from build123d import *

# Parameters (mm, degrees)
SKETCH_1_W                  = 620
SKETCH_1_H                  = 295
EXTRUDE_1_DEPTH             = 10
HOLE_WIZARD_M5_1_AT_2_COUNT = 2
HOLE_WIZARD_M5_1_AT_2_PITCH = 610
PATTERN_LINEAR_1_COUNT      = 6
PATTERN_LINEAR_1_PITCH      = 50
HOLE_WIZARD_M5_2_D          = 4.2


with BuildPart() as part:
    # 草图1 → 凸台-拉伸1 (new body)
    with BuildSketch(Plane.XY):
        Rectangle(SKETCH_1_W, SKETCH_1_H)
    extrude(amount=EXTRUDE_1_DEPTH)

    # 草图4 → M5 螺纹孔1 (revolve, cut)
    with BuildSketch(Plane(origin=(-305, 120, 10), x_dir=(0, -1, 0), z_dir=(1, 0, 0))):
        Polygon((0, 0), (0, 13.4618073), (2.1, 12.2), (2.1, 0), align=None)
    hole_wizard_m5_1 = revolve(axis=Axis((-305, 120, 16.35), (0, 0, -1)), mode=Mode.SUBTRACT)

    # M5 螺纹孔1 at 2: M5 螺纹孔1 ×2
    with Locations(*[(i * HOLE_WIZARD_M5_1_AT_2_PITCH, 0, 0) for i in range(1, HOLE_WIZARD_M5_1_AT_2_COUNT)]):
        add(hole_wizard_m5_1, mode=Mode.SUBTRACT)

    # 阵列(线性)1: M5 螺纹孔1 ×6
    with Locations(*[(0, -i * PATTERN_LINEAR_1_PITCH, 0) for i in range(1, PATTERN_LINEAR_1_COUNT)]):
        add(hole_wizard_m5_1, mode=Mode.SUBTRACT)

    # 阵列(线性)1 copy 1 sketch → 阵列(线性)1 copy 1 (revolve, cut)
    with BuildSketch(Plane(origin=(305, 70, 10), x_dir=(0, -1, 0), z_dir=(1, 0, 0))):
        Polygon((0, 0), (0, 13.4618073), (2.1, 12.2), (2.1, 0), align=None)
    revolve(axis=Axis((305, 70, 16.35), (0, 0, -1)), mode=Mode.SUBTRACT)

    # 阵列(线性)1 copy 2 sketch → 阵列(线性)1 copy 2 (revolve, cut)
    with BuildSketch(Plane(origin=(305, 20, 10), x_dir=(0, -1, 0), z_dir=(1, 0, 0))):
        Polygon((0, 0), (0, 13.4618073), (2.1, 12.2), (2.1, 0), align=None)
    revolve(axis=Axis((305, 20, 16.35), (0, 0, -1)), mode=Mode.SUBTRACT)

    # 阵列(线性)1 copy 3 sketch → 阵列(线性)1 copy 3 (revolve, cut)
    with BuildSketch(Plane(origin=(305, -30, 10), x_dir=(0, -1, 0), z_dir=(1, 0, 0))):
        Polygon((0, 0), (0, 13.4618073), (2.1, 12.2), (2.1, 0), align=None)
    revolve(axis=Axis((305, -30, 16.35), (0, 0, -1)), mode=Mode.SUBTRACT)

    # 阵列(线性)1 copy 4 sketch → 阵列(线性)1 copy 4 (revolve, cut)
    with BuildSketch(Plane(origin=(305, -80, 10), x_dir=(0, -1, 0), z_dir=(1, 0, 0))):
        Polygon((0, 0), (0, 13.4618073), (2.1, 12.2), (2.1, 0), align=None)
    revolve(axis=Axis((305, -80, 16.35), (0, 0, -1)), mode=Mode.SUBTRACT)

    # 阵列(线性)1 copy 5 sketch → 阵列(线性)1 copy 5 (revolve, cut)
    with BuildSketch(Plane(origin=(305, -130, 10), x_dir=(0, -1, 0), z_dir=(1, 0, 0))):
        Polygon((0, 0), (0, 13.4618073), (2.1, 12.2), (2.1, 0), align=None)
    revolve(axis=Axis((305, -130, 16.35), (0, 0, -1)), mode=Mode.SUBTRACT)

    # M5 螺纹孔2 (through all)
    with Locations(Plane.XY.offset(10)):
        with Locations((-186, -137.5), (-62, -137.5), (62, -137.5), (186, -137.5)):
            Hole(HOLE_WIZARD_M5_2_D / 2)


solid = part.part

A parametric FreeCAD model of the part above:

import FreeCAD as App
import Part
import Sketcher
from FreeCAD import Vector
Q = App.Units.Quantity


def add_polygon(sketch, points):
    """Adds a closed chain of lines whose ends are joined by coincident constraints."""
    first, n = sketch.GeometryCount, len(points)
    for a, b in zip(points, points[1:] + points[:1]):
        sketch.addGeometry(Part.LineSegment(App.Vector(*a, 0), App.Vector(*b, 0)), False)
    for i in range(n):
        sketch.addConstraint(Sketcher.Constraint("Coincident", first + i, 2, first + (i + 1) % n, 1))

doc = App.newDocument("Part")
body = doc.addObject("PartDesign::Body", "Body")

sketch1 = doc.addObject("Sketcher::SketchObject", "Sketch")
body.addObject(sketch1)
sketch1.AttachmentSupport = (doc.XY_Plane, [""])
sketch1.MapMode = "FlatFace"
add_polygon(sketch1, [(-310, 148), (-310, -148), (310, -148), (310, 148)])
sketch1.addConstraint([
    Sketcher.Constraint("Vertical", 0),
    Sketcher.Constraint("Horizontal", 1),
    Sketcher.Constraint("Vertical", 2),
    Sketcher.Constraint("Horizontal", 3),
    Sketcher.Constraint("Symmetric", 0, 2, 2, 2, -1, 1),
    Sketcher.Constraint("DistanceX", 1, 1, 1, 2, 620.0),
    Sketcher.Constraint("DistanceY", 0, 2, 0, 1, 295.0),
])
pad1 = doc.addObject("PartDesign::Pad", "Pad")
body.addObject(pad1)
pad1.Profile = sketch1
pad1.Length = 10

sketch2 = doc.addObject("Sketcher::SketchObject", "Sketch001")
body.addObject(sketch2)
sketch2.AttachmentSupport = (doc.YZ_Plane, [""])
sketch2.MapMode = "FlatFace"
sketch2.AttachmentOffset = App.Placement(Vector(0, 0, -305), App.Rotation())
add_polygon(sketch2, [(120, -3.5), (120, 10), (117.9, 10), (117.9, -2.2)])
sketch2.addGeometry(Part.LineSegment(Vector(120, 10, 0), Vector(120, -3.5, 0)), True)
sketch2.addConstraint([
    Sketcher.Constraint("Vertical", 0),
    Sketcher.Constraint("Horizontal", 1),
    Sketcher.Constraint("Vertical", 2),
    Sketcher.Constraint("Vertical", 4),
    Sketcher.Constraint("Coincident", 4, 1, 0, 2),
    Sketcher.Constraint("Equal", 0, 4),
    Sketcher.Constraint("Angle", 3, Q("-31 deg")),
    Sketcher.Constraint("DistanceX", 1, 2, 1, 1, 2.1),
    Sketcher.Constraint("DistanceY", 2, 2, 2, 1, 12.2),
    Sketcher.Constraint("DistanceX", -1, 1, 0, 2, 120.0),
    Sketcher.Constraint("DistanceY", -1, 1, 0, 2, 10.0),
])
groove = doc.addObject("PartDesign::Groove", "Groove")
body.addObject(groove)
groove.Profile = sketch2
groove.ReferenceAxis = (sketch2, ["Axis0"])
groove.Angle = 360
doc.recompute()

linearpattern = doc.addObject("PartDesign::LinearPattern", "LinearPattern")
body.addObject(linearpattern)
linearpattern.Originals = [groove]
linearpattern.Direction = (doc.X_Axis, [""])
linearpattern.Mode = "offset"
linearpattern.Offset = 610
linearpattern.Occurrences = 2
body.Tip = linearpattern
doc.recompute()

linearpattern2 = doc.addObject("PartDesign::LinearPattern", "LinearPattern001")
body.addObject(linearpattern2)
linearpattern2.Originals = [groove]
linearpattern2.Direction = (doc.Y_Axis, [""])
linearpattern2.Mode = "offset"
linearpattern2.Offset = 50
linearpattern2.Occurrences = 6
linearpattern2.Reversed = True
body.Tip = linearpattern2

sketch3 = doc.addObject("Sketcher::SketchObject", "Sketch002")
body.addObject(sketch3)
sketch3.AttachmentSupport = (doc.YZ_Plane, [""])
sketch3.MapMode = "FlatFace"
sketch3.AttachmentOffset = App.Placement(Vector(0, 0, 305), App.Rotation())
add_polygon(sketch3, [(70, -3.5), (70, 10), (67.9, 10), (67.9, -2.2)])
sketch3.addGeometry(Part.LineSegment(Vector(70, 10, 0), Vector(70, -3.5, 0)), True)
sketch3.addConstraint([
    Sketcher.Constraint("Vertical", 0),
    Sketcher.Constraint("Horizontal", 1),
    Sketcher.Constraint("Vertical", 2),
    Sketcher.Constraint("Vertical", 4),
    Sketcher.Constraint("Coincident", 4, 1, 0, 2),
    Sketcher.Constraint("Equal", 0, 4),
    Sketcher.Constraint("Angle", 3, Q("-31 deg")),
    Sketcher.Constraint("DistanceX", 1, 2, 1, 1, 2.1),
    Sketcher.Constraint("DistanceY", 2, 2, 2, 1, 12.2),
    Sketcher.Constraint("DistanceX", -1, 1, 0, 2, 70.0),
    Sketcher.Constraint("DistanceY", -1, 1, 0, 2, 10.0),
])
groove2 = doc.addObject("PartDesign::Groove", "Groove001")
body.addObject(groove2)
groove2.Profile = sketch3
groove2.ReferenceAxis = (sketch3, ["Axis0"])
groove2.Angle = 360

sketch4 = doc.addObject("Sketcher::SketchObject", "Sketch003")
body.addObject(sketch4)
sketch4.AttachmentSupport = (doc.YZ_Plane, [""])
sketch4.MapMode = "FlatFace"
sketch4.AttachmentOffset = App.Placement(Vector(0, 0, 305), App.Rotation())
add_polygon(sketch4, [(20, -3.5), (20, 10), (17.9, 10), (17.9, -2.2)])
sketch4.addGeometry(Part.LineSegment(Vector(20, 10, 0), Vector(20, -3.5, 0)), True)
sketch4.addConstraint([
    Sketcher.Constraint("Vertical", 0),
    Sketcher.Constraint("Horizontal", 1),
    Sketcher.Constraint("Vertical", 2),
    Sketcher.Constraint("Vertical", 4),
    Sketcher.Constraint("Coincident", 4, 1, 0, 2),
    Sketcher.Constraint("Equal", 0, 4),
    Sketcher.Constraint("Angle", 3, Q("-31 deg")),
    Sketcher.Constraint("DistanceX", 1, 2, 1, 1, 2.1),
    Sketcher.Constraint("DistanceY", 2, 2, 2, 1, 12.2),
    Sketcher.Constraint("DistanceX", -1, 1, 0, 2, 20.0),
    Sketcher.Constraint("DistanceY", -1, 1, 0, 2, 10.0),
])
groove3 = doc.addObject("PartDesign::Groove", "Groove002")
body.addObject(groove3)
groove3.Profile = sketch4
groove3.ReferenceAxis = (sketch4, ["Axis0"])
groove3.Angle = 360

sketch5 = doc.addObject("Sketcher::SketchObject", "Sketch004")
body.addObject(sketch5)
sketch5.AttachmentSupport = (doc.YZ_Plane, [""])
sketch5.MapMode = "FlatFace"
sketch5.AttachmentOffset = App.Placement(Vector(0, 0, 305), App.Rotation())
add_polygon(sketch5, [(-30, -3.5), (-30, 10), (-32.1, 10), (-32.1, -2.2)])
sketch5.addGeometry(Part.LineSegment(Vector(-30, 10, 0), Vector(-30, -3.5, 0)), True)
sketch5.addConstraint([
    Sketcher.Constraint("Vertical", 0),
    Sketcher.Constraint("Horizontal", 1),
    Sketcher.Constraint("Vertical", 2),
    Sketcher.Constraint("Vertical", 4),
    Sketcher.Constraint("Coincident", 4, 1, 0, 2),
    Sketcher.Constraint("Equal", 0, 4),
    Sketcher.Constraint("Angle", 3, Q("-31 deg")),
    Sketcher.Constraint("DistanceX", 1, 2, 1, 1, 2.1),
    Sketcher.Constraint("DistanceY", 2, 2, 2, 1, 12.2),
    Sketcher.Constraint("DistanceX", 0, 2, -1, 1, 30.0),
    Sketcher.Constraint("DistanceY", -1, 1, 0, 2, 10.0),
])
groove4 = doc.addObject("PartDesign::Groove", "Groove003")
body.addObject(groove4)
groove4.Profile = sketch5
groove4.ReferenceAxis = (sketch5, ["Axis0"])
groove4.Angle = 360

sketch6 = doc.addObject("Sketcher::SketchObject", "Sketch005")
body.addObject(sketch6)
sketch6.AttachmentSupport = (doc.YZ_Plane, [""])
sketch6.MapMode = "FlatFace"
sketch6.AttachmentOffset = App.Placement(Vector(0, 0, 305), App.Rotation())
add_polygon(sketch6, [(-80, -3.5), (-80, 10), (-82.1, 10), (-82.1, -2.2)])
sketch6.addGeometry(Part.LineSegment(Vector(-80, 10, 0), Vector(-80, -3.5, 0)), True)
sketch6.addConstraint([
    Sketcher.Constraint("Vertical", 0),
    Sketcher.Constraint("Horizontal", 1),
    Sketcher.Constraint("Vertical", 2),
    Sketcher.Constraint("Vertical", 4),
    Sketcher.Constraint("Coincident", 4, 1, 0, 2),
    Sketcher.Constraint("Equal", 0, 4),
    Sketcher.Constraint("Angle", 3, Q("-31 deg")),
    Sketcher.Constraint("DistanceX", 1, 2, 1, 1, 2.1),
    Sketcher.Constraint("DistanceY", 2, 2, 2, 1, 12.2),
    Sketcher.Constraint("DistanceX", 0, 2, -1, 1, 80.0),
    Sketcher.Constraint("DistanceY", -1, 1, 0, 2, 10.0),
])
groove5 = doc.addObject("PartDesign::Groove", "Groove004")
body.addObject(groove5)
groove5.Profile = sketch6
groove5.ReferenceAxis = (sketch6, ["Axis0"])
groove5.Angle = 360

sketch7 = doc.addObject("Sketcher::SketchObject", "Sketch006")
body.addObject(sketch7)
sketch7.AttachmentSupport = (doc.YZ_Plane, [""])
sketch7.MapMode = "FlatFace"
sketch7.AttachmentOffset = App.Placement(Vector(0, 0, 305), App.Rotation())
add_polygon(sketch7, [(-130, -3.5), (-130, 10), (-132.1, 10), (-132.1, -2.2)])
sketch7.addGeometry(Part.LineSegment(Vector(-130, 10, 0), Vector(-130, -3.5, 0)), True)
sketch7.addConstraint([
    Sketcher.Constraint("Vertical", 0),
    Sketcher.Constraint("Horizontal", 1),
    Sketcher.Constraint("Vertical", 2),
    Sketcher.Constraint("Vertical", 4),
    Sketcher.Constraint("Coincident", 4, 1, 0, 2),
    Sketcher.Constraint("Equal", 0, 4),
    Sketcher.Constraint("Angle", 3, Q("-31 deg")),
    Sketcher.Constraint("DistanceX", 1, 2, 1, 1, 2.1),
    Sketcher.Constraint("DistanceY", 2, 2, 2, 1, 12.2),
    Sketcher.Constraint("DistanceX", 0, 2, -1, 1, 130.0),
    Sketcher.Constraint("DistanceY", -1, 1, 0, 2, 10.0),
])
groove6 = doc.addObject("PartDesign::Groove", "Groove005")
body.addObject(groove6)
groove6.Profile = sketch7
groove6.ReferenceAxis = (sketch7, ["Axis0"])
groove6.Angle = 360

sketch8 = doc.addObject("Sketcher::SketchObject", "Sketch007")
body.addObject(sketch8)
sketch8.AttachmentSupport = (doc.XY_Plane, [""])
sketch8.MapMode = "FlatFace"
sketch8.AttachmentOffset = App.Placement(Vector(0, 0, 10), App.Rotation())
sketch8.addGeometry([
    Part.Circle(Vector(-186, -137.5, 0), Vector(0, 0, 1), 2.1),
    Part.Circle(Vector(-62, -137.5, 0), Vector(0, 0, 1), 2.1),
    Part.Circle(Vector(62, -137.5, 0), Vector(0, 0, 1), 2.1),
    Part.Circle(Vector(186, -137.5, 0), Vector(0, 0, 1), 2.1),
], False)
sketch8.addConstraint([
    Sketcher.Constraint("Equal", 0, 1),
    Sketcher.Constraint("Equal", 1, 2),
    Sketcher.Constraint("Equal", 2, 3),
    Sketcher.Constraint("Symmetric", 1, 3, 2, 3, -2),
    Sketcher.Constraint("Symmetric", 0, 3, 3, 3, -2),
    Sketcher.Constraint("Horizontal", 0, 3, 1, 3),
    Sketcher.Constraint("Diameter", 0, 4.2),
    Sketcher.Constraint("DistanceX", 0, 3, -1, 1, 186.0),
    Sketcher.Constraint("DistanceX", 1, 3, -1, 1, 62.0),
    Sketcher.Constraint("DistanceY", 0, 3, -1, 1, 137.5),
])
doc.recompute()
hole = doc.addObject("PartDesign::Hole", "Hole")
body.addObject(hole)
hole.Profile = sketch8
hole.ThreadType = "None"
hole.Diameter = 4.2
hole.DepthType = "ThroughAll"

doc.recompute()
